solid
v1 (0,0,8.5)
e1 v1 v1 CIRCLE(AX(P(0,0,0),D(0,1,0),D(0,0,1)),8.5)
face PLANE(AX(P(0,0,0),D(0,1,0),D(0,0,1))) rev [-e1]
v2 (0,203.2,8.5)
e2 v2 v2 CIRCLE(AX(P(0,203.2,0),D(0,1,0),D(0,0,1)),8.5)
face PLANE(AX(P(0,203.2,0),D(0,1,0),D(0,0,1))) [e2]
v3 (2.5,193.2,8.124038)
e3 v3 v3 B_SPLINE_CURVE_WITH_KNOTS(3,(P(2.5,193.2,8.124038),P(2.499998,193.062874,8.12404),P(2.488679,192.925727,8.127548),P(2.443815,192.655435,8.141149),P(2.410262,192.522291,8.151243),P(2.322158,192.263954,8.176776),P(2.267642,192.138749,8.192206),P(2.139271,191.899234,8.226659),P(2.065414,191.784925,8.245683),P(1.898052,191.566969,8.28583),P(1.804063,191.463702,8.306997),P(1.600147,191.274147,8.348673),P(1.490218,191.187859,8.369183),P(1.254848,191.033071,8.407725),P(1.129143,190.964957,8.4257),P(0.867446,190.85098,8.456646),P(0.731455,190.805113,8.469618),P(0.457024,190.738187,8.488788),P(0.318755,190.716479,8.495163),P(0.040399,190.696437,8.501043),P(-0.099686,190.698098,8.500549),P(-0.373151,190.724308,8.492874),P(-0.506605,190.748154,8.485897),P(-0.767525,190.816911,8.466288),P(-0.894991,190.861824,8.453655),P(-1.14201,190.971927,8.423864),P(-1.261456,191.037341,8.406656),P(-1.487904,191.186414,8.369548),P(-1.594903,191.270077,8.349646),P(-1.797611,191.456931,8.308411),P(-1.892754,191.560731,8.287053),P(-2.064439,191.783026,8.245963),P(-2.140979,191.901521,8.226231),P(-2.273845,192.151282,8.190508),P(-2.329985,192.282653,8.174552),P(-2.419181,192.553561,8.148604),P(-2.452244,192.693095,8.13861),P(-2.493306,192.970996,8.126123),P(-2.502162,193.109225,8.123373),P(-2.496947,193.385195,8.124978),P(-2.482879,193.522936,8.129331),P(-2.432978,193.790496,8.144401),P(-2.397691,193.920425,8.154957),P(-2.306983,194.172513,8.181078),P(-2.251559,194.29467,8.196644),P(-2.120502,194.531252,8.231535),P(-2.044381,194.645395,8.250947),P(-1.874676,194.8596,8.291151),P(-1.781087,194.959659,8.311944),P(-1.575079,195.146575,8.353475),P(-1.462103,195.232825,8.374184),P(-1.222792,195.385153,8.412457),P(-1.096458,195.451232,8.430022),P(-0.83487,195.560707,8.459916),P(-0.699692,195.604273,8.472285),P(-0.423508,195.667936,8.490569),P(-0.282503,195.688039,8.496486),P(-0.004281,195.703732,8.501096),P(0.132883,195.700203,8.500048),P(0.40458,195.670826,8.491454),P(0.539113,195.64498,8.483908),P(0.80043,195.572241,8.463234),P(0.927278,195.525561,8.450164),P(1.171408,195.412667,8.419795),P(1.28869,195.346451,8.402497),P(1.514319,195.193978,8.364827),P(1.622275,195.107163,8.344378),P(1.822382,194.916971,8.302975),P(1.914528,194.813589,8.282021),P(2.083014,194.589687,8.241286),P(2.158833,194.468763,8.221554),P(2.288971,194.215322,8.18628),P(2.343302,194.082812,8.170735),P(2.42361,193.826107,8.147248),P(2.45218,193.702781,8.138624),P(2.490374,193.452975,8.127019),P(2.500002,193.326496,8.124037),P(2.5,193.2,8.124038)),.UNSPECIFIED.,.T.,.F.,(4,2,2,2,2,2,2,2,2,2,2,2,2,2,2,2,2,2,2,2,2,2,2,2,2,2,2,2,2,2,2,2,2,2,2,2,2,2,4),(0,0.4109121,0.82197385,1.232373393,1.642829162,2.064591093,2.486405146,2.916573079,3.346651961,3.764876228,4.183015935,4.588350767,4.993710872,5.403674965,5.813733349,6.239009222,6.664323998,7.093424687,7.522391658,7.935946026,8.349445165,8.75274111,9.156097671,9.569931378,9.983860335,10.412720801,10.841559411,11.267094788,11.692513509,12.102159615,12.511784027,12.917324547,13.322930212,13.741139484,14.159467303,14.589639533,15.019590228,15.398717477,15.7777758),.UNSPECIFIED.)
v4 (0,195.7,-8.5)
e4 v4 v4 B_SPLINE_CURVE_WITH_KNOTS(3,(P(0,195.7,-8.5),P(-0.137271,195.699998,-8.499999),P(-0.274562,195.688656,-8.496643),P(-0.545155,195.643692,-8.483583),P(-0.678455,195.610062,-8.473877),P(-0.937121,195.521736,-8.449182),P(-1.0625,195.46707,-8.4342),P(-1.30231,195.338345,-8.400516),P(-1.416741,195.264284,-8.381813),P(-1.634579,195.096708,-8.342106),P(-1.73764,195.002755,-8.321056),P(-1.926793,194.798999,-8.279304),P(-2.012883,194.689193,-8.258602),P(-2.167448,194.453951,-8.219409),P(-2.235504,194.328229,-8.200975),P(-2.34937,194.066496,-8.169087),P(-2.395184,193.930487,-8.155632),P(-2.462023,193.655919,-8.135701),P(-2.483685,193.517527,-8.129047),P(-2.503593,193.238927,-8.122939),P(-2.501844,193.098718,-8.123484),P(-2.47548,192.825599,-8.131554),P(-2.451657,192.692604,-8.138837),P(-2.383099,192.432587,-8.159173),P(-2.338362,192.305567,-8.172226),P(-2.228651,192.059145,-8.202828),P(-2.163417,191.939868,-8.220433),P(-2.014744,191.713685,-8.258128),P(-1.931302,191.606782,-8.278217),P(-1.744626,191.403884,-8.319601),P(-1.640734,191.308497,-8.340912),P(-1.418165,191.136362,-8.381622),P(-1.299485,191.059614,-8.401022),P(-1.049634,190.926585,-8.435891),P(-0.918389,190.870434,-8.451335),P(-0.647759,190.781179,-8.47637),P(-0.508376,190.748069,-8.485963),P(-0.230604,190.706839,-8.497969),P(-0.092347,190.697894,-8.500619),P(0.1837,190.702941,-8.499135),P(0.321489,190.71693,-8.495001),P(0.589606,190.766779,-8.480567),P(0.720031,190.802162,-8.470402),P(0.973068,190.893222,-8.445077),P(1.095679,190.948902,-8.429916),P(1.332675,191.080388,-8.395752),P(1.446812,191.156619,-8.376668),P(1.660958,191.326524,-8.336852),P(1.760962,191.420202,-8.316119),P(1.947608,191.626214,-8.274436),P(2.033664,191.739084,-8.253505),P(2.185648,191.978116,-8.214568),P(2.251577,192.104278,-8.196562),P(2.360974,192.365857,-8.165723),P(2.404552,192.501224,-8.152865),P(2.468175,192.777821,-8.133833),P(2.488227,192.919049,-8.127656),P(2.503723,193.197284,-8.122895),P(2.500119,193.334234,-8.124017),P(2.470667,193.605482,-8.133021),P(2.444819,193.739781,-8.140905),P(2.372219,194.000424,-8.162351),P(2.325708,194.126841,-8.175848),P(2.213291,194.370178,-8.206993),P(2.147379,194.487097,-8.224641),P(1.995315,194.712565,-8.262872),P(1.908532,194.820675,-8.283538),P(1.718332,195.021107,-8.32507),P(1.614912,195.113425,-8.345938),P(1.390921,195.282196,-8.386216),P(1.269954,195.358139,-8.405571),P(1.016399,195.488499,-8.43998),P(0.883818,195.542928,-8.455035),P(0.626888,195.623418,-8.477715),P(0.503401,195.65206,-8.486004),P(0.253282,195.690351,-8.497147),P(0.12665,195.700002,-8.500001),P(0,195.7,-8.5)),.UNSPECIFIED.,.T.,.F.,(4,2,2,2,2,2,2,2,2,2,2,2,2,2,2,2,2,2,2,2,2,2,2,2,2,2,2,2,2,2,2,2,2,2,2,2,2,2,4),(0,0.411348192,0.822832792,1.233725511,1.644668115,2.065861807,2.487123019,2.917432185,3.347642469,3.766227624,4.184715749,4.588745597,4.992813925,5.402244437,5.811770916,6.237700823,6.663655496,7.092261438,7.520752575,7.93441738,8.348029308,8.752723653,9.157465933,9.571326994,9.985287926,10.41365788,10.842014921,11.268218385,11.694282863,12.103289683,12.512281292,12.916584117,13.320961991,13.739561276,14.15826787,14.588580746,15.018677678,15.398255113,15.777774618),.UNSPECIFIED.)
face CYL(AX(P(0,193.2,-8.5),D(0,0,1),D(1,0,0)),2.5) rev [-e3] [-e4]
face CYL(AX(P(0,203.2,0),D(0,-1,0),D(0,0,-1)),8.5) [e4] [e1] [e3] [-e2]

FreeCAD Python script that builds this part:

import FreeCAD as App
import Part
import Sketcher
from FreeCAD import Vector

doc = App.newDocument("Part")
body = doc.addObject("PartDesign::Body", "Body")

# Sketch on XZ plane
sketch1 = doc.addObject("Sketcher::SketchObject", "Sketch")
body.addObject(sketch1)
sketch1.AttachmentSupport = (doc.XZ_Plane, [""])
sketch1.MapMode = "FlatFace"
sketch1.addGeometry(Part.Circle(Vector(0, 0, 0), Vector(0, 0, 1), 8.5), False)
sketch1.addConstraint([
    Sketcher.Constraint("Coincident", 0, 3, -1, 1),
    Sketcher.Constraint("Diameter", 0, 17.0),
])
pad1 = doc.addObject("PartDesign::Pad", "Pad")
body.addObject(pad1)
pad1.Profile = sketch1
pad1.Length = 203.2
pad1.Reversed = True

# Sketch on XY plane
sketch2 = doc.addObject("Sketcher::SketchObject", "Sketch001")
body.addObject(sketch2)
sketch2.AttachmentSupport = (doc.XY_Plane, [""])
sketch2.MapMode = "FlatFace"
sketch2.AttachmentOffset = App.Placement(Vector(0, 0, 8.5), App.Rotation())
sketch2.addGeometry(Part.Circle(Vector(0, 193.2, 0), Vector(0, 0, 1), 2.5), False)
sketch2.addConstraint([
    Sketcher.Constraint("PointOnObject", 0, 3, -2),
    Sketcher.Constraint("Diameter", 0, 5.0),
    Sketcher.Constraint("DistanceY", -1, 1, 0, 3, 193.2),
])
pocket1 = doc.addObject("PartDesign::Pocket", "Pocket")
body.addObject(pocket1)
pocket1.Profile = sketch2
pocket1.Type = "ThroughAll"
pocket1.Midplane = True

doc.recompute()
